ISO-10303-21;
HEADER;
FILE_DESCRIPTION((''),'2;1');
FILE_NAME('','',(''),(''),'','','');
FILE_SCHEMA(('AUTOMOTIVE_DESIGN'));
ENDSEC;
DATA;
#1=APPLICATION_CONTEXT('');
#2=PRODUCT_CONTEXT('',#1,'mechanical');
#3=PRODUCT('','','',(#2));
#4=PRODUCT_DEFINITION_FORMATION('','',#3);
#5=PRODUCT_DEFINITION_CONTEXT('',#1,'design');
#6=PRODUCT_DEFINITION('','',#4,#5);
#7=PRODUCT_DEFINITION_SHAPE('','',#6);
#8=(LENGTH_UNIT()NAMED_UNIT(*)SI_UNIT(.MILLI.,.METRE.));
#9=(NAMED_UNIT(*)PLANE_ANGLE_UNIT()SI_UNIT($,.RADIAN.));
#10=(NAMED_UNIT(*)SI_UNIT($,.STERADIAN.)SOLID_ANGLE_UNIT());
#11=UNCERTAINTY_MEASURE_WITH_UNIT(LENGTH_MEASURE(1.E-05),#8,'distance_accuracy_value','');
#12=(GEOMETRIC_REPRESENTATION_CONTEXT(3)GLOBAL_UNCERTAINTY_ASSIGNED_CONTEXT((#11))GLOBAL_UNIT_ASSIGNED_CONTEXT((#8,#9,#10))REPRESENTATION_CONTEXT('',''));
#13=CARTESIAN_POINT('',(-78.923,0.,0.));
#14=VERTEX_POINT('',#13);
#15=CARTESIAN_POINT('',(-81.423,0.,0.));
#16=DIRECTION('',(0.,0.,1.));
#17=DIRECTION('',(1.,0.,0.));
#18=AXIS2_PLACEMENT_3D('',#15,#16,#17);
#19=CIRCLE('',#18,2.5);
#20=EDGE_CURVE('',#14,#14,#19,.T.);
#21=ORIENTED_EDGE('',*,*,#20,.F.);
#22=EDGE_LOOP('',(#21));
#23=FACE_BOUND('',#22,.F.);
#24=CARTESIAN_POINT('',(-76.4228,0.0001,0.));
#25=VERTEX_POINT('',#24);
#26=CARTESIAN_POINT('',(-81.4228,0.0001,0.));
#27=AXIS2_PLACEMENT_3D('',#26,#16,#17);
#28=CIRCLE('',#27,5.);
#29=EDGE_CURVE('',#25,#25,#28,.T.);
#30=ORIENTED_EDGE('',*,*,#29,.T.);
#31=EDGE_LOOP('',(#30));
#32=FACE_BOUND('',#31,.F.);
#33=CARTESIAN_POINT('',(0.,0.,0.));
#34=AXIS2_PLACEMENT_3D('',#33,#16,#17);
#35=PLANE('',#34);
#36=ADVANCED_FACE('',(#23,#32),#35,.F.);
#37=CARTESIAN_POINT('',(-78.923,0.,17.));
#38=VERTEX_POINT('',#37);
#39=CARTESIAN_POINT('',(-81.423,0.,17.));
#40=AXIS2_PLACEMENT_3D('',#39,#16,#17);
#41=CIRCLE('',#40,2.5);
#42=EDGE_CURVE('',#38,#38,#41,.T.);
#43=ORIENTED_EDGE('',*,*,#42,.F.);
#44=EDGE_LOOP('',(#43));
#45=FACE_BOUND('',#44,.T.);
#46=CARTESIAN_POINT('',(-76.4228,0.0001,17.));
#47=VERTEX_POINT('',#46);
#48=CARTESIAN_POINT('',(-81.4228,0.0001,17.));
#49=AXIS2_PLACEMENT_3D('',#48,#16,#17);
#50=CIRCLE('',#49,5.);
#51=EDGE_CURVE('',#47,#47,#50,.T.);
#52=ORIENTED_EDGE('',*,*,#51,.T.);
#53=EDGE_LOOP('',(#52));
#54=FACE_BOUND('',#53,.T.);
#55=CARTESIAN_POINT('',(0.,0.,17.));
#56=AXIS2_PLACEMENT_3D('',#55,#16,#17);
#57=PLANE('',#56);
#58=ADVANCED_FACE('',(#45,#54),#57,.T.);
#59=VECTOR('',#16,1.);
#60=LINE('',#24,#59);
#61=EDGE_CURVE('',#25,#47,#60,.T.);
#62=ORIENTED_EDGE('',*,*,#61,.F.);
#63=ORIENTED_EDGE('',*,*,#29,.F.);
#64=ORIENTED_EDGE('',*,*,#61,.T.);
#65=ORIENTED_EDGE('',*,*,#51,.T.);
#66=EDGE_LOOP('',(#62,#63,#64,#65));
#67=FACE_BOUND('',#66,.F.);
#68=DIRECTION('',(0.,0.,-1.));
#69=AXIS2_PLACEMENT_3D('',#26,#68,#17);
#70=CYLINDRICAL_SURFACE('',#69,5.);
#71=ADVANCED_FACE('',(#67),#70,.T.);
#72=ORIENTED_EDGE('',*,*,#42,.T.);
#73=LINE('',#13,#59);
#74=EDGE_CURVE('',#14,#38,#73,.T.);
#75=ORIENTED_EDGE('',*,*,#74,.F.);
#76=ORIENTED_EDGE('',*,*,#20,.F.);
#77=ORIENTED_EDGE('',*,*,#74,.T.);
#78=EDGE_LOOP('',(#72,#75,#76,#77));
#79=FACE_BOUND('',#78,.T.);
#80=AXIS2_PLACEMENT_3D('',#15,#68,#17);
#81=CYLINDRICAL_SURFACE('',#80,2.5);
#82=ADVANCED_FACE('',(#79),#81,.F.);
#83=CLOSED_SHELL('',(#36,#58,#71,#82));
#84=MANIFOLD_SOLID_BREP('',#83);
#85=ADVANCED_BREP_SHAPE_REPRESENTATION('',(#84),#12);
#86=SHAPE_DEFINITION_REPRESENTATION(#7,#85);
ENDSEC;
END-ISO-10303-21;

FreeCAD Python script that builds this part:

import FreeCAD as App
import Part
import Sketcher

V = App.Vector
Q = App.Units.Quantity

doc = App.newDocument("Part")
params = doc.addObject("Spreadsheet::Sheet", "Params")
for row, (alias, value) in enumerate([
    ("sketch1_diameter", "10 mm"),
    ("sketch1_diameter2", "5 mm"),
    ("pad1_length", "17 mm"),
], start=1):
    params.set(f"A{row}", alias)
    params.set(f"B{row}", "=" + value)
    params.setAlias(f"B{row}", alias)

body = doc.addObject("PartDesign::Body", "Body")

sketch1 = body.newObject("Sketcher::SketchObject", "Sketch")
sketch1.AttachmentSupport = (doc.getObject("XY_Plane"), [""])
sketch1.MapMode = "FlatFace"
sketch1.addGeometry(Part.Circle(V(-81.4, 0, 0), V(0, 0, 1), 5), False)
sketch1.addGeometry(Part.Circle(V(-81.4, 0, 0), V(0, 0, 1), 2.5), False)
sketch1.addConstraint(Sketcher.Constraint("Coincident", 1, 3, 0, 3))
sketch1.addConstraint(Sketcher.Constraint("PointOnObject", 0, 3, -1))
sketch1.addConstraint(Sketcher.Constraint("Diameter", 0, Q("10 mm")))
sketch1.addConstraint(Sketcher.Constraint("Diameter", 1, Q("5 mm")))
sketch1.addConstraint(Sketcher.Constraint("DistanceX", 1, 3, -1, 1, Q("81.423 mm")))
sketch1.setExpression("Constraints[2]", "Params.sketch1_diameter")
sketch1.setExpression("Constraints[3]", "Params.sketch1_diameter2")
pad1 = body.newObject("PartDesign::Pad", "Pad")
pad1.Profile = sketch1
pad1.setExpression("Length", "Params.pad1_length")

doc.recompute()
